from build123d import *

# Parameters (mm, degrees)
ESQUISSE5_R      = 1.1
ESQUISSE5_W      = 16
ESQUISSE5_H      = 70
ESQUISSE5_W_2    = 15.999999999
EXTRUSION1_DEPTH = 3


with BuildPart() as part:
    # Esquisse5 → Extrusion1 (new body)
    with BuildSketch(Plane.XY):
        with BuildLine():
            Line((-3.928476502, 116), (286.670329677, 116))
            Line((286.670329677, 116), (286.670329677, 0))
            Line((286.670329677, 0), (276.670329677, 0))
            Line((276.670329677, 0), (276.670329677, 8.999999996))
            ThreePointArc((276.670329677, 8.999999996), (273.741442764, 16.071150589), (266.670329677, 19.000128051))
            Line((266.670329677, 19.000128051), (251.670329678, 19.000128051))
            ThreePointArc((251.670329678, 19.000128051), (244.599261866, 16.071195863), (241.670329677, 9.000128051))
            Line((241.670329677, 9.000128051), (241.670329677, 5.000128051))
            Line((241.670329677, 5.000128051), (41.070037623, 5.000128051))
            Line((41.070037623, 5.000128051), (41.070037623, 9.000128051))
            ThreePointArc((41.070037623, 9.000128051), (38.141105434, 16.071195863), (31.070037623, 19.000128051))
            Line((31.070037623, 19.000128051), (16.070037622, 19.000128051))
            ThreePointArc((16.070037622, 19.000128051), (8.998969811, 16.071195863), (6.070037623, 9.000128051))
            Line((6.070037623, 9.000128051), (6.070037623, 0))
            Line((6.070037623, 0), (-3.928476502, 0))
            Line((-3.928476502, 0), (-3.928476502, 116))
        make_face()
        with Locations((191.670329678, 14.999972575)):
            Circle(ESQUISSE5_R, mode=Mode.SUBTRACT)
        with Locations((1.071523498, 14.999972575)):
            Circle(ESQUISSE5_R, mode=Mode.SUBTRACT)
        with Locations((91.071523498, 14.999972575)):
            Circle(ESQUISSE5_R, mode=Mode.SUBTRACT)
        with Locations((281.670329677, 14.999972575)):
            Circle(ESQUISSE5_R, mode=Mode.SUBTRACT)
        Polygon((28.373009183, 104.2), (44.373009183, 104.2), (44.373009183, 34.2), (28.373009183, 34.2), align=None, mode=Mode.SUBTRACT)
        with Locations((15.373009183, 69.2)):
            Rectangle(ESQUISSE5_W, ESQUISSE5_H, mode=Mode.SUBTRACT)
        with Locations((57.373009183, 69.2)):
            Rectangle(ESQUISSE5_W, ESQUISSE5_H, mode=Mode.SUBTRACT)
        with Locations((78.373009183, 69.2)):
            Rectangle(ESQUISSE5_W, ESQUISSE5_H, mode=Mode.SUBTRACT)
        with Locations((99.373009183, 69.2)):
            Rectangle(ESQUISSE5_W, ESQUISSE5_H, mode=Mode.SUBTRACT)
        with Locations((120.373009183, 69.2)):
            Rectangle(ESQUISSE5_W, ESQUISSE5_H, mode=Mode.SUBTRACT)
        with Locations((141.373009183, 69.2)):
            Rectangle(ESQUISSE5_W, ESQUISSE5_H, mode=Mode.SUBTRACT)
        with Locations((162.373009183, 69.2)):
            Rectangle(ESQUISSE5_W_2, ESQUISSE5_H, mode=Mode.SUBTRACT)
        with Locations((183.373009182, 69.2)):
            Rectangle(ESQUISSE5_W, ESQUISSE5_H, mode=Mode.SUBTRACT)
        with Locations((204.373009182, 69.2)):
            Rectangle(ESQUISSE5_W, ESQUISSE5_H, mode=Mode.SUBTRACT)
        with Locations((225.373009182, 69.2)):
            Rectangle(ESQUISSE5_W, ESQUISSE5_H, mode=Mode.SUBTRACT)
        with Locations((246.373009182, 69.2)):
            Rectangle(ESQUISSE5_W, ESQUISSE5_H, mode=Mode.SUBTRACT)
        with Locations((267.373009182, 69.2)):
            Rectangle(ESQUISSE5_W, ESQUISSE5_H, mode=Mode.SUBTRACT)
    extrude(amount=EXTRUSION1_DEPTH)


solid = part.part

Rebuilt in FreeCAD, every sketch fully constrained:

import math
import FreeCAD as App
import Part
import Sketcher

V = App.Vector
Q = App.Units.Quantity

doc = App.newDocument("Part")
body = doc.addObject("PartDesign::Body", "Body")

# Sketch on XY plane
sketch1 = doc.addObject("Sketcher::SketchObject", "Sketch")
body.addObject(sketch1)
sketch1.AttachmentSupport = (doc.XY_Plane, [""])
sketch1.MapMode = "FlatFace"
sketch1.addGeometry([
    Part.LineSegment(V(286.7, 116, 0), V(-3.9, 116, 0)),  # 0
    Part.LineSegment(V(-3.9, 116, 0), V(-3.9, 0, 0)),  # 1
    Part.LineSegment(V(-3.9, 0, 0), V(6.1, 0, 0)),  # 2
    Part.LineSegment(V(6.1, 0, 0), V(6.1, 9, 0)),  # 3
    Part.ArcOfCircle(Part.Circle(V(16.1, 9, 0), V(0, 0, 1), 10), math.radians(90), math.radians(180)),  # 4
    Part.LineSegment(V(16.1, 19, 0), V(31.1, 19, 0)),  # 5
    Part.ArcOfCircle(Part.Circle(V(31.1, 9, 0), V(0, 0, 1), 10), math.radians(0), math.radians(90)),  # 6
    Part.LineSegment(V(41.1, 9, 0), V(41.1, 5, 0)),  # 7
    Part.LineSegment(V(41.1, 5, 0), V(241.7, 5, 0)),  # 8
    Part.LineSegment(V(241.7, 5, 0), V(241.7, 9, 0)),  # 9
    Part.ArcOfCircle(Part.Circle(V(251.7, 9, 0), V(0, 0, 1), 10), math.radians(90), math.radians(180)),  # 10
    Part.LineSegment(V(251.7, 19, 0), V(266.7, 19, 0)),  # 11
    Part.ArcOfCircle(Part.Circle(V(266.7, 9, 0), V(0, 0, 1), 10), math.radians(0), math.radians(90)),  # 12
    Part.LineSegment(V(276.7, 9, 0), V(276.7, 0, 0)),  # 13
    Part.LineSegment(V(276.7, 0, 0), V(286.7, 0, 0)),  # 14
    Part.LineSegment(V(286.7, 0, 0), V(286.7, 116, 0)),  # 15
    Part.Circle(V(281.7, 15, 0), V(0, 0, 1), 1.1),  # 16
    Part.Circle(V(191.7, 15, 0), V(0, 0, 1), 1.1),  # 17
    Part.Circle(V(91.1, 15, 0), V(0, 0, 1), 1.1),  # 18
    Part.Circle(V(1.1, 15, 0), V(0, 0, 1), 1.1),  # 19
    Part.LineSegment(V(259.4, 34.2, 0), V(259.4, 104.2, 0)),  # 20
    Part.LineSegment(V(259.4, 104.2, 0), V(275.4, 104.2, 0)),  # 21
    Part.LineSegment(V(275.4, 104.2, 0), V(275.4, 34.2, 0)),  # 22
    Part.LineSegment(V(275.4, 34.2, 0), V(259.4, 34.2, 0)),  # 23
    Part.LineSegment(V(238.4, 34.2, 0), V(238.4, 104.2, 0)),  # 24
    Part.LineSegment(V(238.4, 104.2, 0), V(254.4, 104.2, 0)),  # 25
    Part.LineSegment(V(254.4, 104.2, 0), V(254.4, 34.2, 0)),  # 26
    Part.LineSegment(V(254.4, 34.2, 0), V(238.4, 34.2, 0)),  # 27
    Part.LineSegment(V(217.4, 34.2, 0), V(217.4, 104.2, 0)),  # 28
    Part.LineSegment(V(217.4, 104.2, 0), V(233.4, 104.2, 0)),  # 29
    Part.LineSegment(V(233.4, 104.2, 0), V(233.4, 34.2, 0)),  # 30
    Part.LineSegment(V(233.4, 34.2, 0), V(217.4, 34.2, 0)),  # 31
    Part.LineSegment(V(196.4, 34.2, 0), V(196.4, 104.2, 0)),  # 32
    Part.LineSegment(V(196.4, 104.2, 0), V(212.4, 104.2, 0)),  # 33
    Part.LineSegment(V(212.4, 104.2, 0), V(212.4, 34.2, 0)),  # 34
    Part.LineSegment(V(212.4, 34.2, 0), V(196.4, 34.2, 0)),  # 35
    Part.LineSegment(V(175.4, 34.2, 0), V(175.4, 104.2, 0)),  # 36
    Part.LineSegment(V(175.4, 104.2, 0), V(191.4, 104.2, 0)),  # 37
    Part.LineSegment(V(191.4, 104.2, 0), V(191.4, 34.2, 0)),  # 38
    Part.LineSegment(V(191.4, 34.2, 0), V(175.4, 34.2, 0)),  # 39
    Part.LineSegment(V(154.4, 34.2, 0), V(154.4, 104.2, 0)),  # 40
    Part.LineSegment(V(154.4, 104.2, 0), V(170.4, 104.2, 0)),  # 41
    Part.LineSegment(V(170.4, 104.2, 0), V(170.4, 34.2, 0)),  # 42
    Part.LineSegment(V(170.4, 34.2, 0), V(154.4, 34.2, 0)),  # 43
    Part.LineSegment(V(133.4, 34.2, 0), V(133.4, 104.2, 0)),  # 44
    Part.LineSegment(V(133.4, 104.2, 0), V(149.4, 104.2, 0)),  # 45
    Part.LineSegment(V(149.4, 104.2, 0), V(149.4, 34.2, 0)),  # 46
    Part.LineSegment(V(149.4, 34.2, 0), V(133.4, 34.2, 0)),  # 47
    Part.LineSegment(V(112.4, 34.2, 0), V(112.4, 104.2, 0)),  # 48
    Part.LineSegment(V(112.4, 104.2, 0), V(128.4, 104.2, 0)),  # 49
    Part.LineSegment(V(128.4, 104.2, 0), V(128.4, 34.2, 0)),  # 50
    Part.LineSegment(V(128.4, 34.2, 0), V(112.4, 34.2, 0)),  # 51
    Part.LineSegment(V(91.4, 34.2, 0), V(91.4, 104.2, 0)),  # 52
    Part.LineSegment(V(91.4, 104.2, 0), V(107.4, 104.2, 0)),  # 53
    Part.LineSegment(V(107.4, 104.2, 0), V(107.4, 34.2, 0)),  # 54
    Part.LineSegment(V(107.4, 34.2, 0), V(91.4, 34.2, 0)),  # 55
    Part.LineSegment(V(70.4, 34.2, 0), V(70.4, 104.2, 0)),  # 56
    Part.LineSegment(V(70.4, 104.2, 0), V(86.4, 104.2, 0)),  # 57
    Part.LineSegment(V(86.4, 104.2, 0), V(86.4, 34.2, 0)),  # 58
    Part.LineSegment(V(86.4, 34.2, 0), V(70.4, 34.2, 0)),  # 59
    Part.LineSegment(V(49.4, 34.2, 0), V(49.4, 104.2, 0)),  # 60
    Part.LineSegment(V(49.4, 104.2, 0), V(65.4, 104.2, 0)),  # 61
    Part.LineSegment(V(65.4, 104.2, 0), V(65.4, 34.2, 0)),  # 62
    Part.LineSegment(V(65.4, 34.2, 0), V(49.4, 34.2, 0)),  # 63
    Part.LineSegment(V(28.4, 104.2, 0), V(44.4, 104.2, 0)),  # 64
    Part.LineSegment(V(44.4, 104.2, 0), V(44.4, 34.2, 0)),  # 65
    Part.LineSegment(V(44.4, 34.2, 0), V(28.4, 34.2, 0)),  # 66
    Part.LineSegment(V(28.4, 34.2, 0), V(28.4, 104.2, 0)),  # 67
    Part.LineSegment(V(7.4, 34.2, 0), V(7.4, 104.2, 0)),  # 68
    Part.LineSegment(V(7.4, 104.2, 0), V(23.4, 104.2, 0)),  # 69
    Part.LineSegment(V(23.4, 104.2, 0), V(23.4, 34.2, 0)),  # 70
    Part.LineSegment(V(23.4, 34.2, 0), V(7.4, 34.2, 0)),  # 71
], False)
sketch1.addConstraint([
    Sketcher.Constraint("Coincident", 0, 2, 1, 1),
    Sketcher.Constraint("Coincident", 1, 2, 2, 1),
    Sketcher.Constraint("Coincident", 2, 2, 3, 1),
    Sketcher.Constraint("Tangent", 3, 2, 4, 2),
    Sketcher.Constraint("Tangent", 4, 1, 5, 1),
    Sketcher.Constraint("Tangent", 5, 2, 6, 2),
    Sketcher.Constraint("Tangent", 6, 1, 7, 1),
    Sketcher.Constraint("Coincident", 7, 2, 8, 1),
    Sketcher.Constraint("Coincident", 8, 2, 9, 1),
    Sketcher.Constraint("Tangent", 9, 2, 10, 2),
    Sketcher.Constraint("Tangent", 10, 1, 11, 1),
    Sketcher.Constraint("Tangent", 11, 2, 12, 2),
    Sketcher.Constraint("Coincident", 12, 1, 13, 1),
    Sketcher.Constraint("Coincident", 13, 2, 14, 1),
    Sketcher.Constraint("Coincident", 14, 2, 15, 1),
    Sketcher.Constraint("Coincident", 15, 2, 0, 1),
    Sketcher.Constraint("Coincident", 20, 2, 21, 1),
    Sketcher.Constraint("Coincident", 21, 2, 22, 1),
    Sketcher.Constraint("Coincident", 22, 2, 23, 1),
    Sketcher.Constraint("Coincident", 23, 2, 20, 1),
    Sketcher.Constraint("Coincident", 24, 2, 25, 1),
    Sketcher.Constraint("Coincident", 25, 2, 26, 1),
    Sketcher.Constraint("Coincident", 26, 2, 27, 1),
    Sketcher.Constraint("Coincident", 27, 2, 24, 1),
    Sketcher.Constraint("Coincident", 28, 2, 29, 1),
    Sketcher.Constraint("Coincident", 29, 2, 30, 1),
    Sketcher.Constraint("Coincident", 30, 2, 31, 1),
    Sketcher.Constraint("Coincident", 31, 2, 28, 1),
    Sketcher.Constraint("Coincident", 32, 2, 33, 1),
    Sketcher.Constraint("Coincident", 33, 2, 34, 1),
    Sketcher.Constraint("Coincident", 34, 2, 35, 1),
    Sketcher.Constraint("Coincident", 35, 2, 32, 1),
    Sketcher.Constraint("Coincident", 36, 2, 37, 1),
    Sketcher.Constraint("Coincident", 37, 2, 38, 1),
    Sketcher.Constraint("Coincident", 38, 2, 39, 1),
    Sketcher.Constraint("Coincident", 39, 2, 36, 1),
    Sketcher.Constraint("Coincident", 40, 2, 41, 1),
    Sketcher.Constraint("Coincident", 41, 2, 42, 1),
    Sketcher.Constraint("Coincident", 42, 2, 43, 1),
    Sketcher.Constraint("Coincident", 43, 2, 40, 1),
    Sketcher.Constraint("Coincident", 44, 2, 45, 1),
    Sketcher.Constraint("Coincident", 45, 2, 46, 1),
    Sketcher.Constraint("Coincident", 46, 2, 47, 1),
    Sketcher.Constraint("Coincident", 47, 2, 44, 1),
    Sketcher.Constraint("Coincident", 48, 2, 49, 1),
    Sketcher.Constraint("Coincident", 49, 2, 50, 1),
    Sketcher.Constraint("Coincident", 50, 2, 51, 1),
    Sketcher.Constraint("Coincident", 51, 2, 48, 1),
    Sketcher.Constraint("Coincident", 52, 2, 53, 1),
    Sketcher.Constraint("Coincident", 53, 2, 54, 1),
    Sketcher.Constraint("Coincident", 54, 2, 55, 1),
    Sketcher.Constraint("Coincident", 55, 2, 52, 1),
    Sketcher.Constraint("Coincident", 56, 2, 57, 1),
    Sketcher.Constraint("Coincident", 57, 2, 58, 1),
    Sketcher.Constraint("Coincident", 58, 2, 59, 1),
    Sketcher.Constraint("Coincident", 59, 2, 56, 1),
    Sketcher.Constraint("Coincident", 60, 2, 61, 1),
    Sketcher.Constraint("Coincident", 61, 2, 62, 1),
    Sketcher.Constraint("Coincident", 62, 2, 63, 1),
    Sketcher.Constraint("Coincident", 63, 2, 60, 1),
    Sketcher.Constraint("Coincident", 64, 2, 65, 1),
    Sketcher.Constraint("Coincident", 65, 2, 66, 1),
    Sketcher.Constraint("Coincident", 66, 2, 67, 1),
    Sketcher.Constraint("Coincident", 67, 2, 64, 1),
    Sketcher.Constraint("Coincident", 68, 2, 69, 1),
    Sketcher.Constraint("Coincident", 69, 2, 70, 1),
    Sketcher.Constraint("Coincident", 70, 2, 71, 1),
    Sketcher.Constraint("Coincident", 71, 2, 68, 1),
    Sketcher.Constraint("Horizontal", 0),
    Sketcher.Constraint("Vertical", 1),
    Sketcher.Constraint("Horizontal", 2),
    Sketcher.Constraint("Vertical", 3),
    Sketcher.Constraint("Horizontal", 5),
    Sketcher.Constraint("Vertical", 7),
    Sketcher.Constraint("Horizontal", 8),
    Sketcher.Constraint("Vertical", 9),
    Sketcher.Constraint("Horizontal", 11),
    Sketcher.Constraint("Vertical", 13),
    Sketcher.Constraint("Horizontal", 14),
    Sketcher.Constraint("Vertical", 15),
    Sketcher.Constraint("Vertical", 20),
    Sketcher.Constraint("Horizontal", 21),
    Sketcher.Constraint("Vertical", 22),
    Sketcher.Constraint("Horizontal", 23),
    Sketcher.Constraint("Vertical", 24),
    Sketcher.Constraint("Horizontal", 25),
    Sketcher.Constraint("Vertical", 26),
    Sketcher.Constraint("Horizontal", 27),
    Sketcher.Constraint("Vertical", 28),
    Sketcher.Constraint("Horizontal", 29),
    Sketcher.Constraint("Vertical", 30),
    Sketcher.Constraint("Horizontal", 31),
    Sketcher.Constraint("Vertical", 32),
    Sketcher.Constraint("Horizontal", 33),
    Sketcher.Constraint("Vertical", 34),
    Sketcher.Constraint("Horizontal", 35),
    Sketcher.Constraint("Vertical", 36),
    Sketcher.Constraint("Horizontal", 37),
    Sketcher.Constraint("Vertical", 38),
    Sketcher.Constraint("Horizontal", 39),
    Sketcher.Constraint("Vertical", 40),
    Sketcher.Constraint("Horizontal", 41),
    Sketcher.Constraint("Vertical", 42),
    Sketcher.Constraint("Horizontal", 43),
    Sketcher.Constraint("Vertical", 44),
    Sketcher.Constraint("Horizontal", 45),
    Sketcher.Constraint("Vertical", 46),
    Sketcher.Constraint("Horizontal", 47),
    Sketcher.Constraint("Vertical", 48),
    Sketcher.Constraint("Horizontal", 49),
    Sketcher.Constraint("Vertical", 50),
    Sketcher.Constraint("Horizontal", 51),
    Sketcher.Constraint("Vertical", 52),
    Sketcher.Constraint("Horizontal", 53),
    Sketcher.Constraint("Vertical", 54),
    Sketcher.Constraint("Horizontal", 55),
    Sketcher.Constraint("Vertical", 56),
    Sketcher.Constraint("Horizontal", 57),
    Sketcher.Constraint("Vertical", 58),
    Sketcher.Constraint("Horizontal", 59),
    Sketcher.Constraint("Vertical", 60),
    Sketcher.Constraint("Horizontal", 61),
    Sketcher.Constraint("Vertical", 62),
    Sketcher.Constraint("Horizontal", 63),
    Sketcher.Constraint("Horizontal", 64),
    Sketcher.Constraint("Vertical", 65),
    Sketcher.Constraint("Horizontal", 66),
    Sketcher.Constraint("Vertical", 67),
    Sketcher.Constraint("Vertical", 68),
    Sketcher.Constraint("Horizontal", 69),
    Sketcher.Constraint("Vertical", 70),
    Sketcher.Constraint("Horizontal", 71),
    Sketcher.Constraint("Equal", 4, 6),
    Sketcher.Constraint("Equal", 6, 10),
    Sketcher.Constraint("Equal", 10, 12),
    Sketcher.Constraint("Equal", 16, 17),
    Sketcher.Constraint("Equal", 17, 18),
    Sketcher.Constraint("Equal", 18, 19),
    Sketcher.Constraint("PointOnObject", 1, 2, -1),
    Sketcher.Constraint("PointOnObject", 13, 2, -1),
    Sketcher.Constraint("Horizontal", 6, 3, 10, 3),
    Sketcher.Constraint("Horizontal", 16, 3, 17, 3),
    Sketcher.Constraint("Horizontal", 17, 3, 18, 3),
    Sketcher.Constraint("Horizontal", 18, 3, 19, 3),
    Sketcher.Constraint("Horizontal", 21, 2, 24, 2),
    Sketcher.Constraint("Horizontal", 23, 2, 26, 2),
    Sketcher.Constraint("Horizontal", 25, 2, 28, 2),
    Sketcher.Constraint("Horizontal", 27, 2, 30, 2),
    Sketcher.Constraint("Horizontal", 29, 2, 32, 2),
    Sketcher.Constraint("Horizontal", 31, 2, 34, 2),
    Sketcher.Constraint("Horizontal", 33, 2, 36, 2),
    Sketcher.Constraint("Horizontal", 35, 2, 38, 2),
    Sketcher.Constraint("Horizontal", 37, 2, 40, 2),
    Sketcher.Constraint("Horizontal", 39, 2, 42, 2),
    Sketcher.Constraint("Horizontal", 41, 2, 44, 2),
    Sketcher.Constraint("Horizontal", 43, 2, 46, 2),
    Sketcher.Constraint("Horizontal", 45, 2, 48, 2),
    Sketcher.Constraint("Horizontal", 47, 2, 50, 2),
    Sketcher.Constraint("Horizontal", 49, 2, 52, 2),
    Sketcher.Constraint("Horizontal", 51, 2, 54, 2),
    Sketcher.Constraint("Horizontal", 53, 2, 56, 2),
    Sketcher.Constraint("Horizontal", 55, 2, 58, 2),
    Sketcher.Constraint("Horizontal", 57, 2, 60, 2),
    Sketcher.Constraint("Horizontal", 59, 2, 62, 2),
    Sketcher.Constraint("Horizontal", 61, 2, 64, 2),
    Sketcher.Constraint("Horizontal", 63, 2, 65, 2),
    Sketcher.Constraint("Horizontal", 67, 2, 68, 2),
    Sketcher.Constraint("Horizontal", 66, 2, 70, 2),
    Sketcher.Constraint("Equal", 5, 11),
    Sketcher.Constraint("Equal", 23, 25),
    Sketcher.Constraint("Equal", 27, 29),
    Sketcher.Constraint("Equal", 31, 33),
    Sketcher.Constraint("Equal", 35, 37),
    Sketcher.Constraint("Equal", 39, 41),
    Sketcher.Constraint("Equal", 43, 45),
    Sketcher.Constraint("Equal", 47, 49),
    Sketcher.Constraint("Equal", 51, 53),
    Sketcher.Constraint("Equal", 55, 57),
    Sketcher.Constraint("Equal", 59, 61),
    Sketcher.Constraint("Equal", 63, 64),
    Sketcher.Constraint("Equal", 66, 69),
    Sketcher.Constraint("Radius", 4, Q("10 mm")),
    Sketcher.Constraint("Diameter", 16, Q("2.2 mm")),
    Sketcher.Constraint("DistanceX", 5, 1, 5, 2, Q("15 mm")),
    Sketcher.Constraint("DistanceX", 14, 1, 14, 2, Q("10 mm")),
    Sketcher.Constraint("DistanceX", 21, 1, 21, 2, Q("16 mm")),
    Sketcher.Constraint("DistanceY", 1, 2, 1, 1, Q("116 mm")),
    Sketcher.Constraint("DistanceY", 7, 2, 7, 1, Q("4 mm")),
    Sketcher.Constraint("DistanceY", 13, 2, 13, 1, Q("9 mm")),
    Sketcher.Constraint("DistanceY", 20, 1, 20, 2, Q("70 mm")),
    Sketcher.Constraint("DistanceY", -1, 1, 20, 2, Q("104.2 mm")),
    Sketcher.Constraint("DistanceY", 3, 1, 3, 2, Q("9.000128 mm")),
    Sketcher.Constraint("DistanceX", 0, 2, 0, 1, Q("290.598806 mm")),
    Sketcher.Constraint("DistanceX", 2, 1, 2, 2, Q("9.998514 mm")),
    Sketcher.Constraint("DistanceX", -1, 1, 10, 3, Q("251.67033 mm")),
    Sketcher.Constraint("DistanceX", -1, 1, 16, 3, Q("281.67033 mm")),
    Sketcher.Constraint("DistanceX", -1, 1, 17, 3, Q("191.67033 mm")),
    Sketcher.Constraint("DistanceX", -1, 1, 20, 2, Q("259.373009 mm")),
    Sketcher.Constraint("DistanceX", -1, 1, 24, 2, Q("238.373009 mm")),
    Sketcher.Constraint("DistanceX", -1, 1, 28, 2, Q("217.373009 mm")),
    Sketcher.Constraint("DistanceX", -1, 1, 32, 2, Q("196.373009 mm")),
    Sketcher.Constraint("DistanceX", -1, 1, 36, 2, Q("175.373009 mm")),
    Sketcher.Constraint("DistanceX", -1, 1, 40, 2, Q("154.373009 mm")),
    Sketcher.Constraint("DistanceX", -1, 1, 44, 2, Q("133.373009 mm")),
    Sketcher.Constraint("DistanceX", -1, 1, 48, 2, Q("112.373009 mm")),
    Sketcher.Constraint("DistanceX", -1, 1, 52, 2, Q("91.373009 mm")),
    Sketcher.Constraint("DistanceX", -1, 1, 56, 2, Q("70.373009 mm")),
    Sketcher.Constraint("DistanceX", -1, 1, 60, 2, Q("49.373009 mm")),
    Sketcher.Constraint("DistanceX", -1, 1, 64, 2, Q("44.373009 mm")),
    Sketcher.Constraint("DistanceX", -1, 1, 68, 2, Q("7.373009 mm")),
    Sketcher.Constraint("DistanceY", -1, 1, 16, 3, Q("14.999973 mm")),
    Sketcher.Constraint("DistanceX", -1, 1, 18, 3, Q("91.071523 mm")),
    Sketcher.Constraint("DistanceX", -1, 1, 19, 3, Q("1.071523 mm")),
])
pad1 = doc.addObject("PartDesign::Pad", "Pad")
body.addObject(pad1)
pad1.Profile = sketch1
pad1.Length = 3

doc.recompute()
